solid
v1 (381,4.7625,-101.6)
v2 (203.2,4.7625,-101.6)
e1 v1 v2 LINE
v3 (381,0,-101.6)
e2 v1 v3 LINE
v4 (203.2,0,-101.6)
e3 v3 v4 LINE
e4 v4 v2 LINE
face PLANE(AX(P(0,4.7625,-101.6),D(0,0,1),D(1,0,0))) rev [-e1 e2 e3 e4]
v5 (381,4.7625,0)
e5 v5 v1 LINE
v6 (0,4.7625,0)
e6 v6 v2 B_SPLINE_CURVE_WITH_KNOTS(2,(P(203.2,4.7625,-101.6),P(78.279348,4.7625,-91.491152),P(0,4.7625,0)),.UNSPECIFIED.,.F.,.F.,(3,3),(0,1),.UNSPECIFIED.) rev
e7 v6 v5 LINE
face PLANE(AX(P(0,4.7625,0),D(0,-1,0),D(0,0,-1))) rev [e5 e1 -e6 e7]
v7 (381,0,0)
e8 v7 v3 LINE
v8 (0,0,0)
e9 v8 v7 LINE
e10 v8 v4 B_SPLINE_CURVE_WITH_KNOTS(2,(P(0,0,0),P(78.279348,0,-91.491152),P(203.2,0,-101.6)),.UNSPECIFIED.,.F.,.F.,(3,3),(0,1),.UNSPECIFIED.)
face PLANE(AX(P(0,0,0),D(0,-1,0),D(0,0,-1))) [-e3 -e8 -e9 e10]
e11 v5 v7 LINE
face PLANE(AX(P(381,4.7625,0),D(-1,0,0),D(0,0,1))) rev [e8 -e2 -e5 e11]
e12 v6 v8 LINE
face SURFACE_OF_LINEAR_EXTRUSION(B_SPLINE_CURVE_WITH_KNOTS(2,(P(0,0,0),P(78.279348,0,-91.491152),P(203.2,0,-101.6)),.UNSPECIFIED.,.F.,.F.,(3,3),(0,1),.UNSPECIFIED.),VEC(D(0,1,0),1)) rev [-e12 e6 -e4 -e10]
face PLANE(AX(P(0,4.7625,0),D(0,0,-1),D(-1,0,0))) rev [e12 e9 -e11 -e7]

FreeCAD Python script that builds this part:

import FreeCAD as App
import Part
import Sketcher

V = App.Vector
Q = App.Units.Quantity

doc = App.newDocument("Part")
body = doc.addObject("PartDesign::Body", "Body")

# Sketch on XZ plane
sketch1 = body.newObject("Sketcher::SketchObject", "Sketch")
sketch1.AttachmentSupport = (doc.getObject("XZ_Plane"), [""])
sketch1.MapMode = "FlatFace"
sketch1.addGeometry([
    Part.LineSegment(V(0, -102, 0), V(0, 0, 0)),
    Part.LineSegment(V(0, 0, 0), V(381, 0, 0)),
    Part.LineSegment(V(381, 0, 0), V(381, -102, 0)),
    Part.LineSegment(V(381, -102, 0), V(0, -102, 0)),
], False)
sketch1.addConstraint([
    Sketcher.Constraint("Coincident", 0, 2, 1, 1),
    Sketcher.Constraint("Coincident", 1, 2, 2, 1),
    Sketcher.Constraint("Coincident", 2, 2, 3, 1),
    Sketcher.Constraint("Coincident", 3, 2, 0, 1),
    Sketcher.Constraint("Vertical", 0),
    Sketcher.Constraint("Horizontal", 1),
    Sketcher.Constraint("Vertical", 2),
    Sketcher.Constraint("Horizontal", 3),
    Sketcher.Constraint("Coincident", 0, 2, -1, 1),
    Sketcher.Constraint("DistanceX", 1, 1, 1, 2, Q("15 in")),
    Sketcher.Constraint("DistanceY", 0, 1, 0, 2, Q("4 in")),
])
pad1 = body.newObject("PartDesign::Pad", "Pad")
pad1.Profile = sketch1
pad1.Length = Q("0.1875 in")
pad1.Reversed = True

# Sketch on XZ plane
sketch2 = body.newObject("Sketcher::SketchObject", "Sketch001")
sketch2.AttachmentSupport = (doc.getObject("XZ_Plane"), [""])
sketch2.MapMode = "FlatFace"
sketch2.AttachmentOffset = App.Placement(V(0, 0, -0.1875 * 25.4), App.Rotation())
sketch2.addGeometry([
    Part.LineSegment(V(0, -101.6, 0), V(0, 0, 0)),
    Part.BSplineCurve([V(0, 0, 0), V(78.279348, -91.491152, 0), V(203.2, -101.6, 0)], [3, 3], [0, 1], False, 2, [1, 1, 1], False),
    Part.LineSegment(V(203.2, -101.6, 0), V(0, -101.6, 0)),
], False)
sketch2.addConstraint([
    Sketcher.Constraint("Block", 1),
    Sketcher.Constraint("Coincident", 0, 2, 1, 1),
    Sketcher.Constraint("Coincident", 1, 2, 2, 1),
    Sketcher.Constraint("Coincident", 2, 2, 0, 1),
    Sketcher.Constraint("Vertical", 0),
    Sketcher.Constraint("Horizontal", 2),
])
pocket1 = body.newObject("PartDesign::Pocket", "Pocket")
pocket1.Profile = sketch2
pocket1.Type = "ThroughAll"
pocket1.Midplane = True

doc.recompute()
